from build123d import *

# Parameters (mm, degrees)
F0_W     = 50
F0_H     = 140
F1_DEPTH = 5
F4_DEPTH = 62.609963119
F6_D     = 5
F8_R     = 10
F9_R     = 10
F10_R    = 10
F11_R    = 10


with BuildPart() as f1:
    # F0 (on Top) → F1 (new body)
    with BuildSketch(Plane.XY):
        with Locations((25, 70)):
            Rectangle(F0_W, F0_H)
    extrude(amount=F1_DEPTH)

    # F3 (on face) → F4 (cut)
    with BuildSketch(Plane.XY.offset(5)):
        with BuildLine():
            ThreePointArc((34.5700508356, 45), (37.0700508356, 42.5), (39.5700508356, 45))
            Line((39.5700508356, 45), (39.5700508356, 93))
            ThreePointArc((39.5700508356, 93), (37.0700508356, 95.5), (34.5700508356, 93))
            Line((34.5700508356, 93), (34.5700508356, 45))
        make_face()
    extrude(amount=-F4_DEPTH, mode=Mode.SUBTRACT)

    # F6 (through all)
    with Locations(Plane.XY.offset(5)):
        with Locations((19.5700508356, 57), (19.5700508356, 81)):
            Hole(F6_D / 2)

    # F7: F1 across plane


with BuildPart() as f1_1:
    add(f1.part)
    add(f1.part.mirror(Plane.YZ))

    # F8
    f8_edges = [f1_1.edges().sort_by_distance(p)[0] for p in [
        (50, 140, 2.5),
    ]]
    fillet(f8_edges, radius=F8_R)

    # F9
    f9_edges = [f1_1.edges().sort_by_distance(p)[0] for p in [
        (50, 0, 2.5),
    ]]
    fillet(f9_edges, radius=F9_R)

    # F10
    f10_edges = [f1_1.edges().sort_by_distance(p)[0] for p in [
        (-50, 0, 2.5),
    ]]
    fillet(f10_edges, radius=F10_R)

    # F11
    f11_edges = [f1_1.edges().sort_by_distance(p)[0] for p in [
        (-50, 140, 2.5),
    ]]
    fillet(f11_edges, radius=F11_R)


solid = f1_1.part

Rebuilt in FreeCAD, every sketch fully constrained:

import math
import FreeCAD as App
import Part
import Sketcher

V = App.Vector


def edges_at(feature, points):
    """Names of the edges that pass closest to the given points."""
    edges = feature.Shape.Edges
    near = lambda p: min(range(len(edges)), key=lambda i: edges[i].distToShape(Part.Vertex(*p))[0])
    return sorted({f"Edge{near(p) + 1}" for p in points})

doc = App.newDocument("Part")
params = doc.addObject("Spreadsheet::Sheet", "Params")
for row, (alias, value) in enumerate([
    ("sketch1_width", "50 mm"),
    ("sketch1_height", "140 mm"),
    ("pad1_length", "5 mm"),
    ("sketch2_radius", "2.5 mm"),
    ("sketch2_height", "48 mm"),
    ("pocket1_length", "62.609963 mm"),
    ("sketch3_diameter", "5 mm"),
    ("hole_diameter", "5 mm"),
    ("fillet_radius", "10 mm"),
    ("fillet2_radius", "10 mm"),
    ("fillet3_radius", "10 mm"),
    ("fillet4_radius", "10 mm"),
], start=1):
    params.set(f"A{row}", alias)
    params.set(f"B{row}", "=" + value)
    params.setAlias(f"B{row}", alias)

body = doc.addObject("PartDesign::Body", "Body")

# Sketch on XY plane
sketch1 = body.newObject("Sketcher::SketchObject", "Sketch")
sketch1.AttachmentSupport = (doc.getObject("XY_Plane"), [""])
sketch1.MapMode = "FlatFace"
sketch1.addGeometry(Part.LineSegment(V(0, 140, 0), V(0, 0, 0)), False)
sketch1.addGeometry(Part.LineSegment(V(0, 0, 0), V(50, 0, 0)), False)
sketch1.addGeometry(Part.LineSegment(V(50, 0, 0), V(50, 140, 0)), False)
sketch1.addGeometry(Part.LineSegment(V(50, 140, 0), V(0, 140, 0)), False)
sketch1.addConstraint(Sketcher.Constraint("Coincident", 0, 2, 1, 1))
sketch1.addConstraint(Sketcher.Constraint("Coincident", 1, 2, 2, 1))
sketch1.addConstraint(Sketcher.Constraint("Coincident", 2, 2, 3, 1))
sketch1.addConstraint(Sketcher.Constraint("Coincident", 3, 2, 0, 1))
sketch1.addConstraint(Sketcher.Constraint("Vertical", 0))
sketch1.addConstraint(Sketcher.Constraint("Horizontal", 1))
sketch1.addConstraint(Sketcher.Constraint("Vertical", 2))
sketch1.addConstraint(Sketcher.Constraint("Horizontal", 3))
sketch1.addConstraint(Sketcher.Constraint("Coincident", 0, 2, -1, 1))
sketch1.addConstraint(Sketcher.Constraint("DistanceX", 1, 1, 1, 2, 50.0))
sketch1.addConstraint(Sketcher.Constraint("DistanceY", 0, 2, 0, 1, 140.0))
sketch1.setExpression("Constraints[9]", "Params.sketch1_width")
sketch1.setExpression("Constraints[10]", "Params.sketch1_height")
pad1 = body.newObject("PartDesign::Pad", "Pad")
pad1.Profile = sketch1
pad1.setExpression("Length", "Params.pad1_length")

# Sketch on XY plane
sketch2 = body.newObject("Sketcher::SketchObject", "Sketch001")
sketch2.AttachmentSupport = (doc.getObject("XY_Plane"), [""])
sketch2.MapMode = "FlatFace"
sketch2.AttachmentOffset = App.Placement(V(0, 0, 5), App.Rotation())
sketch2.addGeometry(Part.ArcOfCircle(Part.Circle(V(37.1, 45, 0), V(0, 0, 1), 2.5), math.radians(180), math.radians(360)), False)
sketch2.addGeometry(Part.LineSegment(V(39.6, 45, 0), V(39.6, 93, 0)), False)
sketch2.addGeometry(Part.ArcOfCircle(Part.Circle(V(37.1, 93, 0), V(0, 0, 1), 2.5), math.radians(0), math.radians(180)), False)
sketch2.addGeometry(Part.LineSegment(V(34.6, 93, 0), V(34.6, 45, 0)), False)
sketch2.addConstraint(Sketcher.Constraint("Tangent", 0, 2, 1, 1))
sketch2.addConstraint(Sketcher.Constraint("Tangent", 1, 2, 2, 1))
sketch2.addConstraint(Sketcher.Constraint("Tangent", 2, 2, 3, 1))
sketch2.addConstraint(Sketcher.Constraint("Tangent", 3, 2, 0, 1))
sketch2.addConstraint(Sketcher.Constraint("Vertical", 1))
sketch2.addConstraint(Sketcher.Constraint("Vertical", 3))
sketch2.addConstraint(Sketcher.Constraint("Radius", 0, 2.5))
sketch2.addConstraint(Sketcher.Constraint("DistanceY", 1, 1, 1, 2, 48.0))
sketch2.addConstraint(Sketcher.Constraint("DistanceY", -1, 1, 0, 3, 45.0))
sketch2.addConstraint(Sketcher.Constraint("DistanceX", -1, 1, 0, 3, 37.070051))
sketch2.setExpression("Constraints[6]", "Params.sketch2_radius")
sketch2.setExpression("Constraints[7]", "Params.sketch2_height")
pocket1 = body.newObject("PartDesign::Pocket", "Pocket")
pocket1.Profile = sketch2
pocket1.setExpression("Length", "Params.pocket1_length")

# Sketch on XY plane
sketch3 = body.newObject("Sketcher::SketchObject", "Sketch002")
sketch3.AttachmentSupport = (doc.getObject("XY_Plane"), [""])
sketch3.MapMode = "FlatFace"
sketch3.AttachmentOffset = App.Placement(V(0, 0, 5), App.Rotation())
sketch3.addGeometry(Part.Circle(V(19.6, 57, 0), V(0, 0, 1), 2.5), False)
sketch3.addGeometry(Part.Circle(V(19.6, 81, 0), V(0, 0, 1), 2.5), False)
sketch3.addConstraint(Sketcher.Constraint("Equal", 0, 1))
sketch3.addConstraint(Sketcher.Constraint("Vertical", 0, 3, 1, 3))
sketch3.addConstraint(Sketcher.Constraint("Diameter", 0, 5.0))
sketch3.addConstraint(Sketcher.Constraint("DistanceY", -1, 1, 0, 3, 57.0))
sketch3.addConstraint(Sketcher.Constraint("DistanceY", -1, 1, 1, 3, 81.0))
sketch3.addConstraint(Sketcher.Constraint("DistanceX", -1, 1, 0, 3, 19.570051))
sketch3.setExpression("Constraints[2]", "Params.sketch3_diameter")
doc.recompute()
hole = body.newObject("PartDesign::Hole", "Hole")
hole.Profile = sketch3
hole.ThreadType = "None"
hole.setExpression("Diameter", "Params.hole_diameter")
hole.DepthType = "ThroughAll"
body2 = doc.addObject("PartDesign::Body", "Body001")
doc.recompute()

body2.BaseFeature = body
doc.recompute()

mirroring = doc.addObject("Part::Mirroring", "Mirroring")
mirroring.Source = body
mirroring.Base = V(0, 0, 0)
mirroring.Normal = V(1, 0, 0)
body3 = doc.addObject("PartDesign::Body", "Body002")
body3.BaseFeature = mirroring
boolean = body2.newObject("PartDesign::Boolean", "Boolean")
boolean.Type = "Fuse"
boolean.addObjects([body3])
doc.recompute()

fillet = body2.newObject("PartDesign::Fillet", "Fillet")
fillet.Base = (boolean, edges_at(boolean, [(50, 140, 2.5)]))
fillet.setExpression("Radius", "Params.fillet_radius")
doc.recompute()

fillet2 = body2.newObject("PartDesign::Fillet", "Fillet001")
fillet2.Base = (fillet, edges_at(fillet, [(50, 0, 2.5)]))
fillet2.setExpression("Radius", "Params.fillet2_radius")
doc.recompute()

fillet3 = body2.newObject("PartDesign::Fillet", "Fillet002")
fillet3.Base = (fillet2, edges_at(fillet2, [(-50, 0, 2.5)]))
fillet3.setExpression("Radius", "Params.fillet3_radius")
doc.recompute()

fillet4 = body2.newObject("PartDesign::Fillet", "Fillet003")
fillet4.Base = (fillet3, edges_at(fillet3, [(-50, 140, 2.5)]))
fillet4.setExpression("Radius", "Params.fillet4_radius")
mirroring.Visibility = False

doc.recompute()
